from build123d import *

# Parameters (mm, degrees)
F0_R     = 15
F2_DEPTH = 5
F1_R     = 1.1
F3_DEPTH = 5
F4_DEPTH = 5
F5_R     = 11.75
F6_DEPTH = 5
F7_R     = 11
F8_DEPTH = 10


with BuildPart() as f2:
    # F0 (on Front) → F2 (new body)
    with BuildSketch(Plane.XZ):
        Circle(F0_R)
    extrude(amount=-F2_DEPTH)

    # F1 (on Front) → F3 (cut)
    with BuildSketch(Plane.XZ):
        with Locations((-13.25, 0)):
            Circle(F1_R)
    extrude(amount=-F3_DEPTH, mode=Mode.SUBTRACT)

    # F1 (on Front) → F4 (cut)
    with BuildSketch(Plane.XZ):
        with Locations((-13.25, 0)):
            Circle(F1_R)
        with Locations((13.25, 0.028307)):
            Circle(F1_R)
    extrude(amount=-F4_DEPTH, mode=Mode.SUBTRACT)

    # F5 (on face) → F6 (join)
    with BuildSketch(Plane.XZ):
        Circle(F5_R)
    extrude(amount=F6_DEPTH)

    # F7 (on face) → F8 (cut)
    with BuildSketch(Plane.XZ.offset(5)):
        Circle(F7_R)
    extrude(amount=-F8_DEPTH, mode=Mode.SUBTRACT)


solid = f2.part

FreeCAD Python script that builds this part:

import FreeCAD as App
import Part
import Sketcher
from FreeCAD import Vector
Q = App.Units.Quantity

doc = App.newDocument("Part")
params = doc.addObject("Spreadsheet::Sheet", "Params")
for row, (alias, value) in enumerate([
    ("sketch1_diameter", "30 mm"),
    ("pad1_length", "5 mm"),
    ("sketch2_diameter", "2.2 mm"),
    ("pocket1_length", "5 mm"),
    ("sketch3_diameter", "2.2 mm"),
    ("pocket2_length", "5 mm"),
    ("sketch4_diameter", "23.5 mm"),
    ("pad2_length", "5 mm"),
    ("sketch5_diameter", "22 mm"),
    ("pocket3_length", "10 mm"),
], start=1):
    params.set(f"A{row}", alias)
    params.set(f"B{row}", "=" + value)
    params.setAlias(f"B{row}", alias)

body = doc.addObject("PartDesign::Body", "Body")

# Sketch on XZ plane
sketch1 = body.newObject("Sketcher::SketchObject", "Sketch")
sketch1.AttachmentSupport = (doc.getObject("XZ_Plane"), [""])
sketch1.MapMode = "FlatFace"
sketch1.addGeometry(Part.Circle(Vector(0, 0, 0), Vector(0, 0, 1), 15), False)
sketch1.addConstraint([
    Sketcher.Constraint("Coincident", 0, 3, -1, 1),
    Sketcher.Constraint("Diameter", 0, Q("30 mm")),
])
sketch1.setExpression("Constraints[1]", "Params.sketch1_diameter")
pad1 = body.newObject("PartDesign::Pad", "Pad")
pad1.Profile = sketch1
pad1.setExpression("Length", "Params.pad1_length")
pad1.Reversed = True

# Sketch on XZ plane
sketch2 = body.newObject("Sketcher::SketchObject", "Sketch001")
sketch2.AttachmentSupport = (doc.getObject("XZ_Plane"), [""])
sketch2.MapMode = "FlatFace"
sketch2.addGeometry(Part.Circle(Vector(-13.25, 0, 0), Vector(0, 0, 1), 1.1), False)
sketch2.addConstraint([
    Sketcher.Constraint("PointOnObject", 0, 3, -1),
    Sketcher.Constraint("Diameter", 0, Q("2.2 mm")),
    Sketcher.Constraint("DistanceX", 0, 3, -1, 1, Q("13.25 mm")),
])
sketch2.setExpression("Constraints[1]", "Params.sketch2_diameter")
pocket1 = body.newObject("PartDesign::Pocket", "Pocket")
pocket1.Profile = sketch2
pocket1.setExpression("Length", "Params.pocket1_length")

# Sketch on XZ plane
sketch3 = body.newObject("Sketcher::SketchObject", "Sketch002")
sketch3.AttachmentSupport = (doc.getObject("XZ_Plane"), [""])
sketch3.MapMode = "FlatFace"
sketch3.addGeometry([
    Part.Circle(Vector(-13.25, 0, 0), Vector(0, 0, 1), 1.1),
    Part.Circle(Vector(13.25, 0.028307, 0), Vector(0, 0, 1), 1.1),
], False)
sketch3.addConstraint([
    Sketcher.Constraint("Equal", 0, 1),
    Sketcher.Constraint("PointOnObject", 0, 3, -1),
    Sketcher.Constraint("Diameter", 0, Q("2.2 mm")),
    Sketcher.Constraint("DistanceX", 0, 3, 1, 3, Q("26.5 mm")),
    Sketcher.Constraint("DistanceX", 0, 3, -1, 1, Q("13.25 mm")),
    Sketcher.Constraint("DistanceY", -1, 1, 1, 3, Q("0.028307 mm")),
])
sketch3.setExpression("Constraints[2]", "Params.sketch3_diameter")
pocket2 = body.newObject("PartDesign::Pocket", "Pocket001")
pocket2.Profile = sketch3
pocket2.setExpression("Length", "Params.pocket2_length")

# Sketch on XZ plane
sketch4 = body.newObject("Sketcher::SketchObject", "Sketch003")
sketch4.AttachmentSupport = (doc.getObject("XZ_Plane"), [""])
sketch4.MapMode = "FlatFace"
sketch4.addGeometry(Part.Circle(Vector(0, 0, 0), Vector(0, 0, 1), 11.75), False)
sketch4.addConstraint([
    Sketcher.Constraint("Coincident", 0, 3, -1, 1),
    Sketcher.Constraint("Diameter", 0, Q("23.5 mm")),
])
sketch4.setExpression("Constraints[1]", "Params.sketch4_diameter")
pad2 = body.newObject("PartDesign::Pad", "Pad001")
pad2.Profile = sketch4
pad2.setExpression("Length", "Params.pad2_length")

# Sketch on XZ plane
sketch5 = body.newObject("Sketcher::SketchObject", "Sketch004")
sketch5.AttachmentSupport = (doc.getObject("XZ_Plane"), [""])
sketch5.MapMode = "FlatFace"
sketch5.AttachmentOffset = App.Placement(Vector(0, 0, 5), App.Rotation())
sketch5.addGeometry(Part.Circle(Vector(0, 0, 0), Vector(0, 0, 1), 11), False)
sketch5.addConstraint([
    Sketcher.Constraint("Coincident", 0, 3, -1, 1),
    Sketcher.Constraint("Diameter", 0, Q("22 mm")),
])
sketch5.setExpression("Constraints[1]", "Params.sketch5_diameter")
pocket3 = body.newObject("PartDesign::Pocket", "Pocket002")
pocket3.Profile = sketch5
pocket3.setExpression("Length", "Params.pocket3_length")

doc.recompute()
